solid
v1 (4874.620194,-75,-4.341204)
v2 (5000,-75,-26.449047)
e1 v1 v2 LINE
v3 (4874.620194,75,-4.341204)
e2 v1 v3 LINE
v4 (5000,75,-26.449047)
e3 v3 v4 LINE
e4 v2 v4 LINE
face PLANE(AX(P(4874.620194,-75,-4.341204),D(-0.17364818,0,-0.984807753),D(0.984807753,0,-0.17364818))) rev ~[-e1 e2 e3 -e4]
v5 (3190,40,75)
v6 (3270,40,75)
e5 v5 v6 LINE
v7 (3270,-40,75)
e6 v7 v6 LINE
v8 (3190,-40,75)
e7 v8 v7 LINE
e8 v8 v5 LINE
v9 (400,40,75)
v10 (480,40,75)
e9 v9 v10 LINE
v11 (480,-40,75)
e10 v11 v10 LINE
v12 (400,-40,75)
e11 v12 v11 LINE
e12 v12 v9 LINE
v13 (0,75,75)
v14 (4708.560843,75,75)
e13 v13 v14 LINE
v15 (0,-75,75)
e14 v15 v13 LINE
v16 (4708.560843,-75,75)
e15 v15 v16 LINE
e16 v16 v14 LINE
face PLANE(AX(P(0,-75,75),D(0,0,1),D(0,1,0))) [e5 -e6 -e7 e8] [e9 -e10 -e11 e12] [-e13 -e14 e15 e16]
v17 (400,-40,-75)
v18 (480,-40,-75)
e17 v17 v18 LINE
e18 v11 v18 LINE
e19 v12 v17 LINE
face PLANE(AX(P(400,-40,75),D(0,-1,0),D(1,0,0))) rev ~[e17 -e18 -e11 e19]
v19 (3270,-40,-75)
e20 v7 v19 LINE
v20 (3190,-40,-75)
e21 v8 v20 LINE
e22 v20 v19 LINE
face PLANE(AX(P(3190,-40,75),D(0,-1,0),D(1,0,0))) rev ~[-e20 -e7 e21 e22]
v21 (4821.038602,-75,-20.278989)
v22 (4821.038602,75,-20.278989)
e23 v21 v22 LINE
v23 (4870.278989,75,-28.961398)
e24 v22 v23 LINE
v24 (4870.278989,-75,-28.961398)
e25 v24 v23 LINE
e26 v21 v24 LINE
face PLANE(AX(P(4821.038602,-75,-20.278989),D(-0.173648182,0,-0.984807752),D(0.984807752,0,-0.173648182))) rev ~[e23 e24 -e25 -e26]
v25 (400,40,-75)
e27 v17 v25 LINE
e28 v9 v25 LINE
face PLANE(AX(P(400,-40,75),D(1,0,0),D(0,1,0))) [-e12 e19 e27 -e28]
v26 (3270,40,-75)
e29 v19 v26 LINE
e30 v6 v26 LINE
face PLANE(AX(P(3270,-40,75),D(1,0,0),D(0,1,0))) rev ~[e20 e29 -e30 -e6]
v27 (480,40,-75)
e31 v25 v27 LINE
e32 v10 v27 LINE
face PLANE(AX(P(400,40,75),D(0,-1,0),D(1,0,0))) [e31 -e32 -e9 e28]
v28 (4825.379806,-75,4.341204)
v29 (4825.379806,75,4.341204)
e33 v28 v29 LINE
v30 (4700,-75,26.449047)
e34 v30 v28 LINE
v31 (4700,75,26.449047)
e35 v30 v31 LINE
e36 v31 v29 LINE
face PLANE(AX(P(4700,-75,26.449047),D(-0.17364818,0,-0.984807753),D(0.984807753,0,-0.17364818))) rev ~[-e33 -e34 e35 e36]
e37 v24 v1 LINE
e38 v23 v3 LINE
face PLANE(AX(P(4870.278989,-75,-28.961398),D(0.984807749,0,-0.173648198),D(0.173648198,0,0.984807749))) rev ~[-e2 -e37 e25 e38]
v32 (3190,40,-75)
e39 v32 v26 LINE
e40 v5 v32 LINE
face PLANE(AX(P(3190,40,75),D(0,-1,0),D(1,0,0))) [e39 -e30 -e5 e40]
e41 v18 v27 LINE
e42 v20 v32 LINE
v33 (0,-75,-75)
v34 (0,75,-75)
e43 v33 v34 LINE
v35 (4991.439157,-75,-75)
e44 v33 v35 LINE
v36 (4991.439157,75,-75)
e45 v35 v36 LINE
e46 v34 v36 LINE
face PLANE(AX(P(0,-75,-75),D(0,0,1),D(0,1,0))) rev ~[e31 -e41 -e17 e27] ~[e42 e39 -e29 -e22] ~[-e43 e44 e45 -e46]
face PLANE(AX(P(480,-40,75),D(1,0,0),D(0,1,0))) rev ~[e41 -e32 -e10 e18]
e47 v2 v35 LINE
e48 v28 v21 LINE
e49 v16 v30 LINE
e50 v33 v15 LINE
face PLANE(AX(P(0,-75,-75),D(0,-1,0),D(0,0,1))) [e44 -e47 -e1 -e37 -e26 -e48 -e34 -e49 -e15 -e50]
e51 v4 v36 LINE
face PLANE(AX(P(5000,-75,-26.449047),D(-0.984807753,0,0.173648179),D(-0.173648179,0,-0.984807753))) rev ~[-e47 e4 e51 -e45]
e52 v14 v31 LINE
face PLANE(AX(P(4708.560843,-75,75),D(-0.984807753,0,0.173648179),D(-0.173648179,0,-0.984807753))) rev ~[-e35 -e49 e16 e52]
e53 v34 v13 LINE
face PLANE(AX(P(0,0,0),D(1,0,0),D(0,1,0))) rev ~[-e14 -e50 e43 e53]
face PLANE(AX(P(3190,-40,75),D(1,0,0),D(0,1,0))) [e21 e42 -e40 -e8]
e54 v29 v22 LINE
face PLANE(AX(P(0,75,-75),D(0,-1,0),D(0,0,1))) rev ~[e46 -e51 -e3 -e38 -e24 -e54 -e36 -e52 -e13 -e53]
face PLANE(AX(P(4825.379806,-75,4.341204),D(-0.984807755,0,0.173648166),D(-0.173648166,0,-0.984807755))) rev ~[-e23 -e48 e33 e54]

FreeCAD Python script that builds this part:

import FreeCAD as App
import Part
import Sketcher

V = App.Vector
Q = App.Units.Quantity


def add_polygon(sketch, points):
    """Adds a closed chain of lines whose ends are joined by coincident constraints."""
    first, n = sketch.GeometryCount, len(points)
    for a, b in zip(points, points[1:] + points[:1]):
        sketch.addGeometry(Part.LineSegment(App.Vector(*a, 0), App.Vector(*b, 0)), False)
    for i in range(n):
        sketch.addConstraint(Sketcher.Constraint("Coincident", first + i, 2, first + (i + 1) % n, 1))

doc = App.newDocument("Part")
body = doc.addObject("PartDesign::Body", "Body")

# Sketch on YZ plane
sketch1 = body.newObject("Sketcher::SketchObject", "Sketch")
sketch1.AttachmentSupport = (doc.getObject("YZ_Plane"), [""])
sketch1.MapMode = "FlatFace"
add_polygon(sketch1, [(-75, 75), (-75, -75), (75, -75), (75, 75)])  # lines 0-3
sketch1.addConstraint([
    Sketcher.Constraint("Vertical", 0),
    Sketcher.Constraint("Horizontal", 1),
    Sketcher.Constraint("Vertical", 2),
    Sketcher.Constraint("Horizontal", 3),
    Sketcher.Constraint("Symmetric", 0, 2, 2, 2, -1, 1),
    Sketcher.Constraint("Equal", 3, 0),
    Sketcher.Constraint("DistanceX", 1, 1, 1, 2, 150.0),
])
pad1 = body.newObject("PartDesign::Pad", "Pad")
pad1.Profile = sketch1
pad1.Length = 5000

# Sketch on XZ plane
sketch2 = body.newObject("Sketcher::SketchObject", "Sketch001")
sketch2.AttachmentSupport = (doc.getObject("XZ_Plane"), [""])
sketch2.MapMode = "FlatFace"
sketch2.AttachmentOffset = App.Placement(V(0, 0, 75), App.Rotation())
add_polygon(sketch2, [(5000, -26), (4991, -75), (5050, -75), (5050, 75), (4709, 75), (4700, 26), (4825, 4), (4821, -20), (4870, -29), (4875, -4)])  # lines 0-9
sketch2.addConstraint([
    Sketcher.Constraint("Horizontal", 1),
    Sketcher.Constraint("Vertical", 2),
    Sketcher.Constraint("Horizontal", 3),
    Sketcher.Constraint("Parallel", 0, 4),
    Sketcher.Constraint("Perpendicular", 4, 5),
    Sketcher.Constraint("Perpendicular", 5, 6),
    Sketcher.Constraint("Perpendicular", 6, 7),
    Sketcher.Constraint("Perpendicular", 7, 8),
    Sketcher.Constraint("Perpendicular", 8, 9),
    Sketcher.Constraint("Equal", 0, 4),
    Sketcher.Constraint("Equal", 6, 8),
    Sketcher.Constraint("Equal", 5, 9),
    Sketcher.Constraint("DistanceY", 2, 1, 2, 2, 150.0),
    Sketcher.Constraint("Angle", 0, Q("-100 deg")),
    Sketcher.Constraint("Distance", 6, 24.999999),
    Sketcher.Constraint("Distance", 7, 49.999999),
    Sketcher.Constraint("DistanceY", 0, 2, -1, 1, 75.0),
    Sketcher.Constraint("DistanceX", -1, 1, 1, 2, 5050.0),
    Sketcher.Constraint("DistanceX", -1, 1, 4, 2, 4700.0),
    Sketcher.Constraint("DistanceX", -1, 1, 9, 2, 5000.0),
])
pocket1 = body.newObject("PartDesign::Pocket", "Pocket")
pocket1.Profile = sketch2
pocket1.Type = "ThroughAll"

# Sketch on XY plane
sketch3 = body.newObject("Sketcher::SketchObject", "Sketch002")
sketch3.AttachmentSupport = (doc.getObject("XY_Plane"), [""])
sketch3.MapMode = "FlatFace"
sketch3.AttachmentOffset = App.Placement(V(0, 0, 75), App.Rotation())
add_polygon(sketch3, [(400, 40), (400, -40), (480, -40), (480, 40)])  # lines 0-3
add_polygon(sketch3, [(3190, 40), (3190, -40), (3270, -40), (3270, 40)])  # lines 4-7
sketch3.addConstraint([
    Sketcher.Constraint("Vertical", 0),
    Sketcher.Constraint("Horizontal", 1),
    Sketcher.Constraint("Vertical", 2),
    Sketcher.Constraint("Horizontal", 3),
    Sketcher.Constraint("Vertical", 4),
    Sketcher.Constraint("Horizontal", 5),
    Sketcher.Constraint("Vertical", 6),
    Sketcher.Constraint("Horizontal", 7),
    Sketcher.Constraint("Horizontal", 1, 2, 4, 2),
    Sketcher.Constraint("Horizontal", 3, 2, 6, 2),
    Sketcher.Constraint("Equal", 3, 5),
    Sketcher.Constraint("Equal", 7, 0),
    Sketcher.Constraint("DistanceX", 1, 1, 1, 2, 80.0),
    Sketcher.Constraint("DistanceX", -1, 1, 0, 2, 400.0),
    Sketcher.Constraint("DistanceY", 0, 2, -1, 1, 40.0),
    Sketcher.Constraint("DistanceX", -1, 1, 4, 2, 3190.0),
])
pocket2 = body.newObject("PartDesign::Pocket", "Pocket001")
pocket2.Profile = sketch3
pocket2.Type = "ThroughAll"

doc.recompute()
